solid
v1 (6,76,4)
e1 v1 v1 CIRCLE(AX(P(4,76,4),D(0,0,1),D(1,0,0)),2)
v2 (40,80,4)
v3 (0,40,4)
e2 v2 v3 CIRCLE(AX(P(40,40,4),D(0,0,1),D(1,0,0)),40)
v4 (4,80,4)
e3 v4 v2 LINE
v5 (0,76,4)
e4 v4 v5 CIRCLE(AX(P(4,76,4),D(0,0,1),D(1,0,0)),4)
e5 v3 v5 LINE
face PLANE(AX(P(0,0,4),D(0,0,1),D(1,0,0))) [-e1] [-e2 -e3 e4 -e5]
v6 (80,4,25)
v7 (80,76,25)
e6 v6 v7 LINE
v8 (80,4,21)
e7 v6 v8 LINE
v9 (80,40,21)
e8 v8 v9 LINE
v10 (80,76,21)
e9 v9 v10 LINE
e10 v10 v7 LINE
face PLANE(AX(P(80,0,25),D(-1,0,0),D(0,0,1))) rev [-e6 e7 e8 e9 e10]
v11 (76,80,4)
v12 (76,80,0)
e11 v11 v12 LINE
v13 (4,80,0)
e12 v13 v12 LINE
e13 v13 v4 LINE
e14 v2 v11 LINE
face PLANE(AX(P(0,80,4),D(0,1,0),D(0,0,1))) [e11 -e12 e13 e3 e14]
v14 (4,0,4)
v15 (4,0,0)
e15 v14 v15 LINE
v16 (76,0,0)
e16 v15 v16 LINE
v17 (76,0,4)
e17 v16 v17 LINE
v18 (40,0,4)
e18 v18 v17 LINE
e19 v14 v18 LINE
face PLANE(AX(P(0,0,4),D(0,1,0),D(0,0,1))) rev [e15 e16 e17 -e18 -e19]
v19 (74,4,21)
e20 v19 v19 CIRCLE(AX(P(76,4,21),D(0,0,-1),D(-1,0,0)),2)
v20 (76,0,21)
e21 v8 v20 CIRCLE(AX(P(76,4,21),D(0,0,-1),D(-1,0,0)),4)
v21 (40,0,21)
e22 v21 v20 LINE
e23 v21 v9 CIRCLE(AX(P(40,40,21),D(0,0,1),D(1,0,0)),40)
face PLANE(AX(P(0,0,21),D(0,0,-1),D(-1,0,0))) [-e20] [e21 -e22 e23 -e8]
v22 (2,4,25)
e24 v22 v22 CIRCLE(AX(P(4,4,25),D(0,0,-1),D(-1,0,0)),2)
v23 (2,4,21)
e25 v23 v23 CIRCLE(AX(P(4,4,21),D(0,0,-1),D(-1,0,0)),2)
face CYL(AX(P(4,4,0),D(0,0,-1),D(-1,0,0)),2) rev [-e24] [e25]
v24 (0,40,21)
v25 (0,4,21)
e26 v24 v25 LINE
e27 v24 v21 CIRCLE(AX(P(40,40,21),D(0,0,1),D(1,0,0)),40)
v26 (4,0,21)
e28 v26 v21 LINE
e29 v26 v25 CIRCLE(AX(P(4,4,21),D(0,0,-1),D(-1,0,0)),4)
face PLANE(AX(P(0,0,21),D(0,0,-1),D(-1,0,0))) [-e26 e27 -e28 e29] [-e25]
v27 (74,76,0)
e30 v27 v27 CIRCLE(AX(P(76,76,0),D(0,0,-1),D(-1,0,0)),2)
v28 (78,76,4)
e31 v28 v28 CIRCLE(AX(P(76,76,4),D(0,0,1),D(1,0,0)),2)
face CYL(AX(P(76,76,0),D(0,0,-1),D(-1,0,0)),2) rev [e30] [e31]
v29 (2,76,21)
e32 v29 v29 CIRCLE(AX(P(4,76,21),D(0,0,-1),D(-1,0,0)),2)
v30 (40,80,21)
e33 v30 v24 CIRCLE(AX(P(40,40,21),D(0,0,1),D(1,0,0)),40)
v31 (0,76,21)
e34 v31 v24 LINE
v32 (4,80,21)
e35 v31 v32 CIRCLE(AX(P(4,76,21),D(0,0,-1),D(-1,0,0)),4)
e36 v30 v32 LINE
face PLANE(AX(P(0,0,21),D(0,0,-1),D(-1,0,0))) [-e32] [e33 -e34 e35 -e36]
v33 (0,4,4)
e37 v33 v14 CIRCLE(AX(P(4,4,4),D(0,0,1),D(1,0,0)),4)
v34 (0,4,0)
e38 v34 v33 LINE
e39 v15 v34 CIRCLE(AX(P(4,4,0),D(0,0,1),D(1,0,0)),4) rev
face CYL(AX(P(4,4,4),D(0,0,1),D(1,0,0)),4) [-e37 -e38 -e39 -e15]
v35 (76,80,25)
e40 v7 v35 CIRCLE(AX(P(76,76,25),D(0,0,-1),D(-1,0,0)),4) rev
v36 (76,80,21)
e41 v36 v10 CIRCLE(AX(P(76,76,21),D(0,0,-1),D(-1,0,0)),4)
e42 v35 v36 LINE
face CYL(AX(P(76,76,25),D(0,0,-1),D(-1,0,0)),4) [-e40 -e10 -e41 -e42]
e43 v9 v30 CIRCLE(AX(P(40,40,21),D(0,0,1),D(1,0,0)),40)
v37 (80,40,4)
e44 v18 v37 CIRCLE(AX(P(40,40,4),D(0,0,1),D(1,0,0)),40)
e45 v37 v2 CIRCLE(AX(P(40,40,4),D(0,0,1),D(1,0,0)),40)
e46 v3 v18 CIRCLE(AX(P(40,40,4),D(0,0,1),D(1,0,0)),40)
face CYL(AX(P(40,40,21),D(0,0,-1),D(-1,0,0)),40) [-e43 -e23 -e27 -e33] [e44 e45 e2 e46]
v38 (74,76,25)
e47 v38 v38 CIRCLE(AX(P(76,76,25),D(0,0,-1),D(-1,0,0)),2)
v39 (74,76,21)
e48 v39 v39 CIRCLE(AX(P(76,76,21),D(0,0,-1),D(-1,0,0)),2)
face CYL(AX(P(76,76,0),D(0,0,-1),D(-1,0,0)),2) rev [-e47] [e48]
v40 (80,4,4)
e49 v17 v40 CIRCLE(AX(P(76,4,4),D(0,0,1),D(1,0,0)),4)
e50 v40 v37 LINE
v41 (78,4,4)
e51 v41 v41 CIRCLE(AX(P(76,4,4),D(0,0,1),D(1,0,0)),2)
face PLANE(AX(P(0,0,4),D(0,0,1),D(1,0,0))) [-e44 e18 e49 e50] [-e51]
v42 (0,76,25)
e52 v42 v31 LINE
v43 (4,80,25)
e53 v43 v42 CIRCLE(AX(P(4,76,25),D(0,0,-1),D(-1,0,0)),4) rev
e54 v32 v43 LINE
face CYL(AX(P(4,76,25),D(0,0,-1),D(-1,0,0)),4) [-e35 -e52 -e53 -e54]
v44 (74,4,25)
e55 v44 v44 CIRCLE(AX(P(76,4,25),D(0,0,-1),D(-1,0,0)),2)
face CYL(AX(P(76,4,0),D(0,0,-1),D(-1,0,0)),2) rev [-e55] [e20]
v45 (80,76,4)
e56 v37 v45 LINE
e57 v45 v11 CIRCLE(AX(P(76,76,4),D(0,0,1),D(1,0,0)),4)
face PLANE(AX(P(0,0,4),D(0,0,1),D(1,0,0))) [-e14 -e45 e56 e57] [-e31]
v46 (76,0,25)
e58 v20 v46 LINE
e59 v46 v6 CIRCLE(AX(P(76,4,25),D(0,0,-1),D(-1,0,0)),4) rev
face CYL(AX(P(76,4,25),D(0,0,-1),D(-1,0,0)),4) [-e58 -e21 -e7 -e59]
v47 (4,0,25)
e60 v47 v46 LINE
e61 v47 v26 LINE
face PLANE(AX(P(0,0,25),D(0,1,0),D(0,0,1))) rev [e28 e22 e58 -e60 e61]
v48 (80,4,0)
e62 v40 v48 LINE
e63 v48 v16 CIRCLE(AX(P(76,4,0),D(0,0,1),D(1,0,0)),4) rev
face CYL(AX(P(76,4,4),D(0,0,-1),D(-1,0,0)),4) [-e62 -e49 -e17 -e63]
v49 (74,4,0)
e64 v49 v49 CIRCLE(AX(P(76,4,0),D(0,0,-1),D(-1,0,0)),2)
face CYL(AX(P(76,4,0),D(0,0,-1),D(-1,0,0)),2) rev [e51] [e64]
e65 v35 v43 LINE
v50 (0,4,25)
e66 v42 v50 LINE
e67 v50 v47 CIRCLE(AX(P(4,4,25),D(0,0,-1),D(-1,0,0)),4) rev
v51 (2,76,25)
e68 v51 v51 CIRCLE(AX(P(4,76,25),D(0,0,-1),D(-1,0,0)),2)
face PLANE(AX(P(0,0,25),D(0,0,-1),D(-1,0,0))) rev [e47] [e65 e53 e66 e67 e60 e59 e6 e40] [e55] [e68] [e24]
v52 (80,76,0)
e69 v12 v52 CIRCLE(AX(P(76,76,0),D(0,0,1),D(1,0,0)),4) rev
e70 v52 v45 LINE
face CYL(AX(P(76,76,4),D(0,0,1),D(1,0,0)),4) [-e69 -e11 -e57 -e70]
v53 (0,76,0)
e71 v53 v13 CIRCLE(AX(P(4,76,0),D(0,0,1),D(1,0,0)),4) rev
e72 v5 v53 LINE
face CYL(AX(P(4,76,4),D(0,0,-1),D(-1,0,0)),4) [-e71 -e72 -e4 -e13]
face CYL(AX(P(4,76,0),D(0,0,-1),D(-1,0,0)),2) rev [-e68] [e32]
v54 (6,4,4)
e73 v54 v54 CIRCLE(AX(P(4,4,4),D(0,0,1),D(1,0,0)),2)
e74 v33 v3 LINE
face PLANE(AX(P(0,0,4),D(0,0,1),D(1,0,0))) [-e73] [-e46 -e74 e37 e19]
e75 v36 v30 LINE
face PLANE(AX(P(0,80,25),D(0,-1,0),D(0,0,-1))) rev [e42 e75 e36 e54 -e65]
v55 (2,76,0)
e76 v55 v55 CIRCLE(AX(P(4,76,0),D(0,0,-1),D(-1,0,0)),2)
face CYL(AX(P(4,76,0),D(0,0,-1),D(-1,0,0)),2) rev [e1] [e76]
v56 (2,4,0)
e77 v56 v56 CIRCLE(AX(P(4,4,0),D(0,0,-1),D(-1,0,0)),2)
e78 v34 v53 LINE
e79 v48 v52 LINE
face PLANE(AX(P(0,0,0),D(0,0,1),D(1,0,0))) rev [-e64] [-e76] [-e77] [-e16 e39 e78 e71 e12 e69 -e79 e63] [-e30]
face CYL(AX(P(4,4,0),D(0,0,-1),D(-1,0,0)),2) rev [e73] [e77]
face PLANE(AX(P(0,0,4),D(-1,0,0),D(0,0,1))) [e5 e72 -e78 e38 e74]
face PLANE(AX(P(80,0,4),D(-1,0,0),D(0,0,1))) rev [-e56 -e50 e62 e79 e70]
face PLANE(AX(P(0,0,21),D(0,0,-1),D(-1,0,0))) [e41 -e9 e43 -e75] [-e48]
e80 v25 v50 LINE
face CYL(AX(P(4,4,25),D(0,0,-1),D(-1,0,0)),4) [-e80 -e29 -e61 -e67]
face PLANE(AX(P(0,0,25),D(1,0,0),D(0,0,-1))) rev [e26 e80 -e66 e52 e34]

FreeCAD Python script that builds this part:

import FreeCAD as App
import Part
import Sketcher
from FreeCAD import Vector
Q = App.Units.Quantity


def edges_at(feature, points):
    """Names of the edges that pass closest to the given points."""
    edges = feature.Shape.Edges
    near = lambda p: min(range(len(edges)), key=lambda i: edges[i].distToShape(Part.Vertex(*p))[0])
    return sorted({f"Edge{near(p) + 1}" for p in points})

doc = App.newDocument("Part")
body = doc.addObject("PartDesign::Body", "Body")

# Sketch on XY plane
sketch1 = body.newObject("Sketcher::SketchObject", "Sketch")
sketch1.AttachmentSupport = (doc.getObject("XY_Plane"), [""])
sketch1.MapMode = "FlatFace"
sketch1.addGeometry([
    Part.LineSegment(Vector(0, 80, 0), Vector(0, 0, 0)),
    Part.LineSegment(Vector(0, 0, 0), Vector(80, 0, 0)),
    Part.LineSegment(Vector(80, 0, 0), Vector(80, 80, 0)),
    Part.LineSegment(Vector(80, 80, 0), Vector(0, 80, 0)),
], False)
sketch1.addConstraint([
    Sketcher.Constraint("Coincident", 0, 2, 1, 1),
    Sketcher.Constraint("Coincident", 1, 2, 2, 1),
    Sketcher.Constraint("Coincident", 2, 2, 3, 1),
    Sketcher.Constraint("Coincident", 3, 2, 0, 1),
    Sketcher.Constraint("Vertical", 0),
    Sketcher.Constraint("Horizontal", 1),
    Sketcher.Constraint("Vertical", 2),
    Sketcher.Constraint("Horizontal", 3),
    Sketcher.Constraint("Coincident", 0, 2, -1, 1),
    Sketcher.Constraint("Equal", 3, 0),
    Sketcher.Constraint("DistanceX", 1, 1, 1, 2, Q("80 mm")),
])
pad1 = body.newObject("PartDesign::Pad", "Pad")
pad1.Profile = sketch1
pad1.Length = 4
doc.recompute()

fillet = body.newObject("PartDesign::Fillet", "Fillet")
fillet.Base = (pad1, edges_at(pad1, [
    (0, 0, 2),
    (0, 80, 2),
    (80, 80, 2),
    (80, 0, 2),
]))
fillet.Radius = 4

# Sketch on XY plane
sketch2 = body.newObject("Sketcher::SketchObject", "Sketch001")
sketch2.AttachmentSupport = (doc.getObject("XY_Plane"), [""])
sketch2.MapMode = "FlatFace"
sketch2.AttachmentOffset = App.Placement(Vector(0, 0, 4), App.Rotation())
sketch2.addGeometry(Part.Circle(Vector(40, 40, 0), Vector(0, 0, 1), 40), False)
sketch2.addConstraint([
    Sketcher.Constraint("Diameter", 0, Q("80 mm")),
    Sketcher.Constraint("DistanceX", -1, 1, 0, 3, Q("40 mm")),
    Sketcher.Constraint("DistanceY", -1, 1, 0, 3, Q("40 mm")),
])
pad2 = body.newObject("PartDesign::Pad", "Pad001")
pad2.Profile = sketch2
pad2.Length = 17

# Sketch on XY plane
sketch3 = body.newObject("Sketcher::SketchObject", "Sketch002")
sketch3.AttachmentSupport = (doc.getObject("XY_Plane"), [""])
sketch3.MapMode = "FlatFace"
sketch3.AttachmentOffset = App.Placement(Vector(0, 0, 21), App.Rotation())
sketch3.addGeometry([
    Part.LineSegment(Vector(0, 80, 0), Vector(0, 0, 0)),
    Part.LineSegment(Vector(0, 0, 0), Vector(80, 0, 0)),
    Part.LineSegment(Vector(80, 0, 0), Vector(80, 80, 0)),
    Part.LineSegment(Vector(80, 80, 0), Vector(0, 80, 0)),
], False)
sketch3.addConstraint([
    Sketcher.Constraint("Coincident", 0, 2, 1, 1),
    Sketcher.Constraint("Coincident", 1, 2, 2, 1),
    Sketcher.Constraint("Coincident", 2, 2, 3, 1),
    Sketcher.Constraint("Coincident", 3, 2, 0, 1),
    Sketcher.Constraint("Vertical", 0),
    Sketcher.Constraint("Horizontal", 1),
    Sketcher.Constraint("Vertical", 2),
    Sketcher.Constraint("Horizontal", 3),
    Sketcher.Constraint("Coincident", 0, 2, -1, 1),
    Sketcher.Constraint("Equal", 3, 0),
    Sketcher.Constraint("DistanceX", 1, 1, 1, 2, Q("80 mm")),
])
pad3 = body.newObject("PartDesign::Pad", "Pad002")
pad3.Profile = sketch3
pad3.Length = 4
doc.recompute()

fillet2 = body.newObject("PartDesign::Fillet", "Fillet001")
fillet2.Base = (pad3, edges_at(pad3, [
    (0, 80, 23),
    (0, 0, 23),
    (80, 0, 23),
    (80, 80, 23),
]))
fillet2.Radius = 4

# Sketch on XY plane
sketch4 = body.newObject("Sketcher::SketchObject", "Sketch003")
sketch4.AttachmentSupport = (doc.getObject("XY_Plane"), [""])
sketch4.MapMode = "FlatFace"
sketch4.addGeometry([
    Part.Circle(Vector(76, 76, 0), Vector(0, 0, 1), 2),
    Part.Circle(Vector(4, 76, 0), Vector(0, 0, 1), 2),
    Part.Circle(Vector(4, 4, 0), Vector(0, 0, 1), 2),
    Part.Circle(Vector(76, 4, 0), Vector(0, 0, 1), 2),
], False)
sketch4.addConstraint([
    Sketcher.Constraint("Equal", 0, 1),
    Sketcher.Constraint("Equal", 1, 2),
    Sketcher.Constraint("Equal", 2, 3),
    Sketcher.Constraint("Horizontal", 0, 3, 1, 3),
    Sketcher.Constraint("Horizontal", 2, 3, 3, 3),
    Sketcher.Constraint("Vertical", 1, 3, 2, 3),
    Sketcher.Constraint("Vertical", 0, 3, 3, 3),
    Sketcher.Constraint("Diameter", 0, Q("4 mm")),
    Sketcher.Constraint("DistanceX", -1, 1, 0, 3, Q("76 mm")),
    Sketcher.Constraint("DistanceY", -1, 1, 0, 3, Q("76 mm")),
    Sketcher.Constraint("DistanceX", -1, 1, 1, 3, Q("4 mm")),
    Sketcher.Constraint("DistanceY", -1, 1, 2, 3, Q("4 mm")),
])
doc.recompute()
hole = body.newObject("PartDesign::Hole", "Hole")
hole.Profile = sketch4
hole.ThreadType = "None"
hole.Diameter = 4
hole.DepthType = "ThroughAll"
hole.Reversed = True

doc.recompute()
